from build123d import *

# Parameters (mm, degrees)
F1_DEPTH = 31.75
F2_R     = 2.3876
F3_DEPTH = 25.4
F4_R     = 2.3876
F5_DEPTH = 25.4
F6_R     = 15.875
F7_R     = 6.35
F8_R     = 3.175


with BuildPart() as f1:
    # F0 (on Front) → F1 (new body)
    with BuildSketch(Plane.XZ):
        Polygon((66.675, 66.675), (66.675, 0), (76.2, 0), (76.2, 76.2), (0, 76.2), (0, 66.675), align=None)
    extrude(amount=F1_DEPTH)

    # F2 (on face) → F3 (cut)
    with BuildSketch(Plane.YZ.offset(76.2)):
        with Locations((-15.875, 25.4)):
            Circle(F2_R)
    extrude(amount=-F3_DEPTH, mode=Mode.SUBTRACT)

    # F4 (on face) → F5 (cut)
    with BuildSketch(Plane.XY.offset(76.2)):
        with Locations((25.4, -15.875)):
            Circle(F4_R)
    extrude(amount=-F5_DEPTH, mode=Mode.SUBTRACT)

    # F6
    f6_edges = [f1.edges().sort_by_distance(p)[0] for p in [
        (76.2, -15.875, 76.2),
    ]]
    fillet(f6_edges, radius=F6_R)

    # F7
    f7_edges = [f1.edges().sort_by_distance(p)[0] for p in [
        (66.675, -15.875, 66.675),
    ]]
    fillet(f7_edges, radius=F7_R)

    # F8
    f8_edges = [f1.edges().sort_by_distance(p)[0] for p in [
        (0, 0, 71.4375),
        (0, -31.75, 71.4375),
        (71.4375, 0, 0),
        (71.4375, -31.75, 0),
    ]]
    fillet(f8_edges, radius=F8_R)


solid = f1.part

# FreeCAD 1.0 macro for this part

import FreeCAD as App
import Part
import Sketcher
Q = App.Units.Quantity


def edges_at(feature, points):
    """Names of the edges that pass closest to the given points."""
    edges = feature.Shape.Edges
    near = lambda p: min(range(len(edges)), key=lambda i: edges[i].distToShape(Part.Vertex(*p))[0])
    return sorted({f"Edge{near(p) + 1}" for p in points})

doc = App.newDocument("Part")
params = doc.addObject("Spreadsheet::Sheet", "Params")
for row, (alias, value) in enumerate([
    ("sketch1_width", "3 in"),
    ("sketch1_width2", "0.375 in"),
    ("pad1_length", "1.25 in"),
    ("sketch2_diameter", "0.188 in"),
    ("pocket1_length", "1 in"),
    ("sketch3_diameter", "0.188 in"),
    ("pocket2_length", "1 in"),
    ("fillet_radius", "0.625 in"),
    ("fillet2_radius", "0.25 in"),
    ("fillet3_radius", "0.125 in"),
], start=1):
    params.set(f"A{row}", alias)
    params.set(f"B{row}", "=" + value)
    params.setAlias(f"B{row}", alias)

body = doc.addObject("PartDesign::Body", "Body")

# Sketch on XZ plane
sketch1 = body.newObject("Sketcher::SketchObject", "Sketch")
sketch1.AttachmentSupport = (doc.getObject("XZ_Plane"), [""])
sketch1.MapMode = "FlatFace"
sketch1.addGeometry(Part.LineSegment(App.Vector(66.675, 66.675, 0), App.Vector(66.675, 0, 0)), False)
sketch1.addGeometry(Part.LineSegment(App.Vector(66.675, 0, 0), App.Vector(76.2, 0, 0)), False)
sketch1.addGeometry(Part.LineSegment(App.Vector(76.2, 0, 0), App.Vector(76.2, 76.2, 0)), False)
sketch1.addGeometry(Part.LineSegment(App.Vector(76.2, 76.2, 0), App.Vector(0, 76.2, 0)), False)
sketch1.addGeometry(Part.LineSegment(App.Vector(0, 76.2, 0), App.Vector(0, 66.675, 0)), False)
sketch1.addGeometry(Part.LineSegment(App.Vector(0, 66.675, 0), App.Vector(66.675, 66.675, 0)), False)
sketch1.addConstraint(Sketcher.Constraint("Coincident", 0, 2, 1, 1))
sketch1.addConstraint(Sketcher.Constraint("Coincident", 1, 2, 2, 1))
sketch1.addConstraint(Sketcher.Constraint("Coincident", 2, 2, 3, 1))
sketch1.addConstraint(Sketcher.Constraint("Coincident", 3, 2, 4, 1))
sketch1.addConstraint(Sketcher.Constraint("Coincident", 4, 2, 5, 1))
sketch1.addConstraint(Sketcher.Constraint("Coincident", 5, 2, 0, 1))
sketch1.addConstraint(Sketcher.Constraint("Vertical", 0))
sketch1.addConstraint(Sketcher.Constraint("Horizontal", 1))
sketch1.addConstraint(Sketcher.Constraint("Vertical", 2))
sketch1.addConstraint(Sketcher.Constraint("Horizontal", 3))
sketch1.addConstraint(Sketcher.Constraint("Vertical", 4))
sketch1.addConstraint(Sketcher.Constraint("Horizontal", 5))
sketch1.addConstraint(Sketcher.Constraint("PointOnObject", 0, 2, -1))
sketch1.addConstraint(Sketcher.Constraint("PointOnObject", 3, 2, -2))
sketch1.addConstraint(Sketcher.Constraint("Equal", 5, 0))
sketch1.addConstraint(Sketcher.Constraint("Equal", 3, 2))
sketch1.addConstraint(Sketcher.Constraint("DistanceX", 3, 2, 3, 1, Q("3 in")))
sketch1.addConstraint(Sketcher.Constraint("DistanceX", 1, 1, 1, 2, Q("0.375 in")))
sketch1.setExpression("Constraints[16]", "Params.sketch1_width")
sketch1.setExpression("Constraints[17]", "Params.sketch1_width2")
pad1 = body.newObject("PartDesign::Pad", "Pad")
pad1.Profile = sketch1
pad1.setExpression("Length", "Params.pad1_length")

# Sketch on YZ plane
sketch2 = body.newObject("Sketcher::SketchObject", "Sketch001")
sketch2.AttachmentSupport = (doc.getObject("YZ_Plane"), [""])
sketch2.MapMode = "FlatFace"
sketch2.AttachmentOffset = App.Placement(App.Vector(0, 0, 3 * 25.4), App.Rotation())
sketch2.addGeometry(Part.Circle(App.Vector(-15.875, 25.4, 0), App.Vector(0, 0, 1), 2.3876), False)
sketch2.addConstraint(Sketcher.Constraint("Diameter", 0, Q("0.188 in")))
sketch2.addConstraint(Sketcher.Constraint("DistanceY", -1, 1, 0, 3, Q("1 in")))
sketch2.addConstraint(Sketcher.Constraint("DistanceX", 0, 3, -1, 1, Q("0.625 in")))
sketch2.setExpression("Constraints[0]", "Params.sketch2_diameter")
pocket1 = body.newObject("PartDesign::Pocket", "Pocket")
pocket1.Profile = sketch2
pocket1.setExpression("Length", "Params.pocket1_length")

# Sketch on XY plane
sketch3 = body.newObject("Sketcher::SketchObject", "Sketch002")
sketch3.AttachmentSupport = (doc.getObject("XY_Plane"), [""])
sketch3.MapMode = "FlatFace"
sketch3.AttachmentOffset = App.Placement(App.Vector(0, 0, 3 * 25.4), App.Rotation())
sketch3.addGeometry(Part.Circle(App.Vector(25.4, -15.875, 0), App.Vector(0, 0, 1), 2.3876), False)
sketch3.addConstraint(Sketcher.Constraint("Diameter", 0, Q("0.188 in")))
sketch3.addConstraint(Sketcher.Constraint("DistanceX", -1, 1, 0, 3, Q("1 in")))
sketch3.addConstraint(Sketcher.Constraint("DistanceY", 0, 3, -1, 1, Q("0.625 in")))
sketch3.setExpression("Constraints[0]", "Params.sketch3_diameter")
pocket2 = body.newObject("PartDesign::Pocket", "Pocket001")
pocket2.Profile = sketch3
pocket2.setExpression("Length", "Params.pocket2_length")
doc.recompute()

fillet = body.newObject("PartDesign::Fillet", "Fillet")
fillet.Base = (pocket2, edges_at(pocket2, [(76.2, -15.875, 76.2)]))
fillet.setExpression("Radius", "Params.fillet_radius")
doc.recompute()

fillet2 = body.newObject("PartDesign::Fillet", "Fillet001")
fillet2.Base = (fillet, edges_at(fillet, [(66.675, -15.875, 66.675)]))
fillet2.setExpression("Radius", "Params.fillet2_radius")
doc.recompute()

fillet3 = body.newObject("PartDesign::Fillet", "Fillet002")
fillet3.Base = (fillet2, edges_at(fillet2, [
    (0, 0, 71.438),
    (0, -31.75, 71.438),
    (71.438, 0, 0),
    (71.438, -31.75, 0),
]))
fillet3.setExpression("Radius", "Params.fillet3_radius")

doc.recompute()
